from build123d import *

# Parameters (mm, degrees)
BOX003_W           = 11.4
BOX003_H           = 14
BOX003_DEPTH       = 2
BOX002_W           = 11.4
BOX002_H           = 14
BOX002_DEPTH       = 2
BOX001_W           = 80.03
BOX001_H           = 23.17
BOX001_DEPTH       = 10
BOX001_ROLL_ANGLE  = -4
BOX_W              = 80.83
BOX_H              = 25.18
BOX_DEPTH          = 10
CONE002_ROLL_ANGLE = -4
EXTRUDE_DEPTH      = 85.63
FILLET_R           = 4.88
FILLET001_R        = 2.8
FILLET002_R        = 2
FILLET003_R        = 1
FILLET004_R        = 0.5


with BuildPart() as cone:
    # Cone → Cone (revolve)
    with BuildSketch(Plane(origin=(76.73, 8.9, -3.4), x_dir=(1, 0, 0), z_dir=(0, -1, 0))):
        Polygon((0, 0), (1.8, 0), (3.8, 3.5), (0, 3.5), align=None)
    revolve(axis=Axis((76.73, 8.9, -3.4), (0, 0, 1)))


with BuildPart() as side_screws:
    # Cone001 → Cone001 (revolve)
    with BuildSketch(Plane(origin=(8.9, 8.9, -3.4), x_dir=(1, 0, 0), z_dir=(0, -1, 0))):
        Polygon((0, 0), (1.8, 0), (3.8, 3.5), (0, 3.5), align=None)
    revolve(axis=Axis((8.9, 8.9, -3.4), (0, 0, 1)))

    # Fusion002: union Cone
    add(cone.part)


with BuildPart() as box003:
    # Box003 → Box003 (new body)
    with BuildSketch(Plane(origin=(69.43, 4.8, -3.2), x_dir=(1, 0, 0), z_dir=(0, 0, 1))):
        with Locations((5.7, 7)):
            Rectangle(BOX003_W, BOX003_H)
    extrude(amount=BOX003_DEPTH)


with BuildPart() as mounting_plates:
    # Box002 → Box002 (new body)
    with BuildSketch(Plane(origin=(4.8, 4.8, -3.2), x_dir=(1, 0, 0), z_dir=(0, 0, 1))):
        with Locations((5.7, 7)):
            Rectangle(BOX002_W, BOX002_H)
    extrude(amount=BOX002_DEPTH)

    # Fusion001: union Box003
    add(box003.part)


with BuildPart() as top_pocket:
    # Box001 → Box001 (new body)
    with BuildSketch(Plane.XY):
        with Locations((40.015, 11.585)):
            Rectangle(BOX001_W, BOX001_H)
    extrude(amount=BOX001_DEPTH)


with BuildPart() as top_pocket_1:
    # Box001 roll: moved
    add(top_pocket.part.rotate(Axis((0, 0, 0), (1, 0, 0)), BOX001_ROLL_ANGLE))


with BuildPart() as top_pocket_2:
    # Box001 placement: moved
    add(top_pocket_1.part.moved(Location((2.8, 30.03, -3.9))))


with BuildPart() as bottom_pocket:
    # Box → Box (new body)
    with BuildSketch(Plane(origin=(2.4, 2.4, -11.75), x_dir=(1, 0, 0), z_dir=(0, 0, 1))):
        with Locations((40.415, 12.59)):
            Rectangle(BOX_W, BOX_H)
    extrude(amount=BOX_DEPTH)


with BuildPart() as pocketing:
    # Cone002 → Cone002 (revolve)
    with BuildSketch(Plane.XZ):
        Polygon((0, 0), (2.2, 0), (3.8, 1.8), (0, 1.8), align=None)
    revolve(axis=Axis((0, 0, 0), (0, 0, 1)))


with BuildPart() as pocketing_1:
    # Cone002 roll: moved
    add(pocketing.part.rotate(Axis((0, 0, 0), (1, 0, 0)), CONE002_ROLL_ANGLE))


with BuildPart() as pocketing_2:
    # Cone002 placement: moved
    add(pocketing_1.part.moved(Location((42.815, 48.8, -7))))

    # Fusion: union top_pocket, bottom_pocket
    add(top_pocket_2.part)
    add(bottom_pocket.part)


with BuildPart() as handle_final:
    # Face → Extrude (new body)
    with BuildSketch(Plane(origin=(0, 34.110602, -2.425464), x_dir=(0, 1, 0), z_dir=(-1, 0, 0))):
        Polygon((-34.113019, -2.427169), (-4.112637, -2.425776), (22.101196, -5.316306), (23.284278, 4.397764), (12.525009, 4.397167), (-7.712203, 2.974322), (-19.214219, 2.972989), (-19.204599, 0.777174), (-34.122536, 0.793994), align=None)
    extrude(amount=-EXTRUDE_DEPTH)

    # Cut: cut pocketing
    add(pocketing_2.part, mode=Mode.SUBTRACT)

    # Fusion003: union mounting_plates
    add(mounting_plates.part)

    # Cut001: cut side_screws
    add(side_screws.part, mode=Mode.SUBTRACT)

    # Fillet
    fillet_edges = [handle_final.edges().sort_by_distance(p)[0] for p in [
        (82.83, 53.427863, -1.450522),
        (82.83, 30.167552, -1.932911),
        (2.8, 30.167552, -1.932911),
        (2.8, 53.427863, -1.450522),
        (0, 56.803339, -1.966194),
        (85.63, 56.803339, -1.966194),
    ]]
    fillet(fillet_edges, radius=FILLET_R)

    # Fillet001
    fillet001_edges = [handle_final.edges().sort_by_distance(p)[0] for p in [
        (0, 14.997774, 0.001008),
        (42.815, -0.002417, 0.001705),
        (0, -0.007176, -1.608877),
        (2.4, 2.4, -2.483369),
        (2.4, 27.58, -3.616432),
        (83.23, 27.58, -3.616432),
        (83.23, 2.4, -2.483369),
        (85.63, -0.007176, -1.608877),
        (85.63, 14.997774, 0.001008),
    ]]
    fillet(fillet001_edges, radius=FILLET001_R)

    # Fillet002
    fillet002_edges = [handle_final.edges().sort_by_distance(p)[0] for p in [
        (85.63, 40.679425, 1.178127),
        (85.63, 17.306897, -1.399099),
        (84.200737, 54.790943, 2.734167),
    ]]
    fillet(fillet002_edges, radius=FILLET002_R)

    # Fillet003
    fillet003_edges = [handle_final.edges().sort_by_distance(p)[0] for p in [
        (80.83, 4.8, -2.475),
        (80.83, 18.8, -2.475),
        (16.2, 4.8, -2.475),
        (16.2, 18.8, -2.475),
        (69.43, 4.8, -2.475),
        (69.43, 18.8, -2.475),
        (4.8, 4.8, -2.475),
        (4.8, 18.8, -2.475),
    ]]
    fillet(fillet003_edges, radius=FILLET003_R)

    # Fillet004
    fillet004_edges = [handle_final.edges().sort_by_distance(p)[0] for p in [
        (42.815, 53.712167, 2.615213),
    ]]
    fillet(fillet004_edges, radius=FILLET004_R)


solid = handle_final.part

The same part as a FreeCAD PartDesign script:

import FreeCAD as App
import Part
import Sketcher

V = App.Vector
Q = App.Units.Quantity


def edges_at(feature, points):
    """Names of the edges that pass closest to the given points."""
    edges = feature.Shape.Edges
    near = lambda p: min(range(len(edges)), key=lambda i: edges[i].distToShape(Part.Vertex(*p))[0])
    return sorted({f"Edge{near(p) + 1}" for p in points})

doc = App.newDocument("Part")
body = doc.addObject("PartDesign::Body", "Body")

# Sketch on XZ plane
sketch1 = body.newObject("Sketcher::SketchObject", "Sketch")
sketch1.AttachmentSupport = (doc.getObject("XZ_Plane"), [""])
sketch1.MapMode = "FlatFace"
sketch1.AttachmentOffset = App.Placement(V(0, 0, -8.9), App.Rotation())
sketch1.addGeometry(Part.LineSegment(V(76.73, -3.4, 0), V(78.53, -3.4, 0)), False)
sketch1.addGeometry(Part.LineSegment(V(78.53, -3.4, 0), V(80.53, 0.1, 0)), False)
sketch1.addGeometry(Part.LineSegment(V(80.53, 0.1, 0), V(76.73, 0.1, 0)), False)
sketch1.addGeometry(Part.LineSegment(V(76.73, 0.1, 0), V(76.73, -3.4, 0)), False)
sketch1.addGeometry(Part.LineSegment(V(76.73, -3.4, 0), V(76.73, 0.1, 0)), True)  # axis
sketch1.addConstraint(Sketcher.Constraint("Coincident", 0, 2, 1, 1))
sketch1.addConstraint(Sketcher.Constraint("Coincident", 1, 2, 2, 1))
sketch1.addConstraint(Sketcher.Constraint("Coincident", 2, 2, 3, 1))
sketch1.addConstraint(Sketcher.Constraint("Coincident", 3, 2, 0, 1))
sketch1.addConstraint(Sketcher.Constraint("Horizontal", 0))
sketch1.addConstraint(Sketcher.Constraint("Horizontal", 2))
sketch1.addConstraint(Sketcher.Constraint("Vertical", 3))
sketch1.addConstraint(Sketcher.Constraint("Vertical", 4))
sketch1.addConstraint(Sketcher.Constraint("Coincident", 4, 1, 3, 2))
sketch1.addConstraint(Sketcher.Constraint("Horizontal", 1, 2, 4, 2))
sketch1.addConstraint(Sketcher.Constraint("DistanceX", 0, 1, 0, 2, Q("1.8 mm")))
sketch1.addConstraint(Sketcher.Constraint("DistanceX", 2, 2, 2, 1, Q("3.8 mm")))
sketch1.addConstraint(Sketcher.Constraint("DistanceY", 3, 2, 3, 1, Q("3.5 mm")))
sketch1.addConstraint(Sketcher.Constraint("DistanceY", 0, 2, -1, 1, Q("3.4 mm")))
sketch1.addConstraint(Sketcher.Constraint("DistanceX", -1, 1, 0, 2, Q("78.53 mm")))
revolution = body.newObject("PartDesign::Revolution", "Revolution")
revolution.Profile = sketch1
revolution.ReferenceAxis = (sketch1, ["Axis0"])
revolution.Angle = 360
body2 = doc.addObject("PartDesign::Body", "Body001")
body2.AllowCompound = True

# Sketch on XZ plane
sketch2 = body2.newObject("Sketcher::SketchObject", "Sketch001")
sketch2.AttachmentSupport = (doc.getObject("XZ_Plane001"), [""])
sketch2.MapMode = "FlatFace"
sketch2.AttachmentOffset = App.Placement(V(0, 0, -8.9), App.Rotation())
sketch2.addGeometry(Part.LineSegment(V(8.9, -3.4, 0), V(10.7, -3.4, 0)), False)
sketch2.addGeometry(Part.LineSegment(V(10.7, -3.4, 0), V(12.7, 0.1, 0)), False)
sketch2.addGeometry(Part.LineSegment(V(12.7, 0.1, 0), V(8.9, 0.1, 0)), False)
sketch2.addGeometry(Part.LineSegment(V(8.9, 0.1, 0), V(8.9, -3.4, 0)), False)
sketch2.addGeometry(Part.LineSegment(V(8.9, -3.4, 0), V(8.9, 0.1, 0)), True)  # axis
sketch2.addConstraint(Sketcher.Constraint("Coincident", 0, 2, 1, 1))
sketch2.addConstraint(Sketcher.Constraint("Coincident", 1, 2, 2, 1))
sketch2.addConstraint(Sketcher.Constraint("Coincident", 2, 2, 3, 1))
sketch2.addConstraint(Sketcher.Constraint("Coincident", 3, 2, 0, 1))
sketch2.addConstraint(Sketcher.Constraint("Horizontal", 0))
sketch2.addConstraint(Sketcher.Constraint("Horizontal", 2))
sketch2.addConstraint(Sketcher.Constraint("Vertical", 3))
sketch2.addConstraint(Sketcher.Constraint("Vertical", 4))
sketch2.addConstraint(Sketcher.Constraint("Coincident", 4, 1, 3, 2))
sketch2.addConstraint(Sketcher.Constraint("Horizontal", 1, 2, 4, 2))
sketch2.addConstraint(Sketcher.Constraint("DistanceX", 0, 1, 0, 2, Q("1.8 mm")))
sketch2.addConstraint(Sketcher.Constraint("DistanceX", 2, 2, 2, 1, Q("3.8 mm")))
sketch2.addConstraint(Sketcher.Constraint("DistanceY", 3, 2, 3, 1, Q("3.5 mm")))
sketch2.addConstraint(Sketcher.Constraint("DistanceX", -1, 1, 0, 2, Q("10.7 mm")))
sketch2.addConstraint(Sketcher.Constraint("DistanceY", 0, 2, -1, 1, Q("3.4 mm")))
revolution2 = body2.newObject("PartDesign::Revolution", "Revolution001")
revolution2.Profile = sketch2
revolution2.ReferenceAxis = (sketch2, ["Axis0"])
revolution2.Angle = 360
doc.recompute()

boolean = body2.newObject("PartDesign::Boolean", "Boolean")
boolean.Type = "Fuse"
boolean.addObjects([body])
body3 = doc.addObject("PartDesign::Body", "Body002")

# Sketch on XY plane
sketch3 = body3.newObject("Sketcher::SketchObject", "Sketch002")
sketch3.AttachmentSupport = (doc.getObject("XY_Plane002"), [""])
sketch3.MapMode = "FlatFace"
sketch3.AttachmentOffset = App.Placement(V(0, 0, -3.2), App.Rotation())
sketch3.addGeometry(Part.LineSegment(V(69.43, 18.8, 0), V(69.43, 4.8, 0)), False)
sketch3.addGeometry(Part.LineSegment(V(69.43, 4.8, 0), V(80.83, 4.8, 0)), False)
sketch3.addGeometry(Part.LineSegment(V(80.83, 4.8, 0), V(80.83, 18.8, 0)), False)
sketch3.addGeometry(Part.LineSegment(V(80.83, 18.8, 0), V(69.43, 18.8, 0)), False)
sketch3.addConstraint(Sketcher.Constraint("Coincident", 0, 2, 1, 1))
sketch3.addConstraint(Sketcher.Constraint("Coincident", 1, 2, 2, 1))
sketch3.addConstraint(Sketcher.Constraint("Coincident", 2, 2, 3, 1))
sketch3.addConstraint(Sketcher.Constraint("Coincident", 3, 2, 0, 1))
sketch3.addConstraint(Sketcher.Constraint("Vertical", 0))
sketch3.addConstraint(Sketcher.Constraint("Horizontal", 1))
sketch3.addConstraint(Sketcher.Constraint("Vertical", 2))
sketch3.addConstraint(Sketcher.Constraint("Horizontal", 3))
sketch3.addConstraint(Sketcher.Constraint("DistanceY", 0, 2, 0, 1, Q("14 mm")))
sketch3.addConstraint(Sketcher.Constraint("DistanceX", 1, 1, 1, 2, Q("11.4 mm")))
sketch3.addConstraint(Sketcher.Constraint("DistanceY", -1, 1, 0, 2, Q("4.8 mm")))
sketch3.addConstraint(Sketcher.Constraint("DistanceX", -1, 1, 0, 2, Q("69.43 mm")))
pad1 = body3.newObject("PartDesign::Pad", "Pad")
pad1.Profile = sketch3
pad1.Length = 2
body4 = doc.addObject("PartDesign::Body", "Body003")
body4.AllowCompound = True

# Sketch on XY plane
sketch4 = body4.newObject("Sketcher::SketchObject", "Sketch003")
sketch4.AttachmentSupport = (doc.getObject("XY_Plane003"), [""])
sketch4.MapMode = "FlatFace"
sketch4.AttachmentOffset = App.Placement(V(0, 0, -3.2), App.Rotation())
sketch4.addGeometry(Part.LineSegment(V(4.8, 18.8, 0), V(4.8, 4.8, 0)), False)
sketch4.addGeometry(Part.LineSegment(V(4.8, 4.8, 0), V(16.2, 4.8, 0)), False)
sketch4.addGeometry(Part.LineSegment(V(16.2, 4.8, 0), V(16.2, 18.8, 0)), False)
sketch4.addGeometry(Part.LineSegment(V(16.2, 18.8, 0), V(4.8, 18.8, 0)), False)
sketch4.addConstraint(Sketcher.Constraint("Coincident", 0, 2, 1, 1))
sketch4.addConstraint(Sketcher.Constraint("Coincident", 1, 2, 2, 1))
sketch4.addConstraint(Sketcher.Constraint("Coincident", 2, 2, 3, 1))
sketch4.addConstraint(Sketcher.Constraint("Coincident", 3, 2, 0, 1))
sketch4.addConstraint(Sketcher.Constraint("Vertical", 0))
sketch4.addConstraint(Sketcher.Constraint("Horizontal", 1))
sketch4.addConstraint(Sketcher.Constraint("Vertical", 2))
sketch4.addConstraint(Sketcher.Constraint("Horizontal", 3))
sketch4.addConstraint(Sketcher.Constraint("DistanceY", 0, 2, 0, 1, Q("14 mm")))
sketch4.addConstraint(Sketcher.Constraint("DistanceX", 1, 1, 1, 2, Q("11.4 mm")))
sketch4.addConstraint(Sketcher.Constraint("DistanceX", -1, 1, 0, 2, Q("4.8 mm")))
sketch4.addConstraint(Sketcher.Constraint("DistanceY", -1, 1, 0, 2, Q("4.8 mm")))
pad2 = body4.newObject("PartDesign::Pad", "Pad001")
pad2.Profile = sketch4
pad2.Length = 2
doc.recompute()

boolean2 = body4.newObject("PartDesign::Boolean", "Boolean001")
boolean2.Type = "Fuse"
boolean2.addObjects([body3])
body5 = doc.addObject("PartDesign::Body", "Body004")

# Sketch on XY plane
sketch5 = body5.newObject("Sketcher::SketchObject", "Sketch004")
sketch5.AttachmentSupport = (doc.getObject("XY_Plane004"), [""])
sketch5.MapMode = "FlatFace"
sketch5.addGeometry(Part.LineSegment(V(0, 23.17, 0), V(0, 0, 0)), False)
sketch5.addGeometry(Part.LineSegment(V(0, 0, 0), V(80.03, 0, 0)), False)
sketch5.addGeometry(Part.LineSegment(V(80.03, 0, 0), V(80.03, 23.17, 0)), False)
sketch5.addGeometry(Part.LineSegment(V(80.03, 23.17, 0), V(0, 23.17, 0)), False)
sketch5.addConstraint(Sketcher.Constraint("Coincident", 0, 2, 1, 1))
sketch5.addConstraint(Sketcher.Constraint("Coincident", 1, 2, 2, 1))
sketch5.addConstraint(Sketcher.Constraint("Coincident", 2, 2, 3, 1))
sketch5.addConstraint(Sketcher.Constraint("Coincident", 3, 2, 0, 1))
sketch5.addConstraint(Sketcher.Constraint("Vertical", 0))
sketch5.addConstraint(Sketcher.Constraint("Horizontal", 1))
sketch5.addConstraint(Sketcher.Constraint("Vertical", 2))
sketch5.addConstraint(Sketcher.Constraint("Horizontal", 3))
sketch5.addConstraint(Sketcher.Constraint("Coincident", 0, 2, -1, 1))
sketch5.addConstraint(Sketcher.Constraint("DistanceX", 1, 1, 1, 2, Q("80.03 mm")))
sketch5.addConstraint(Sketcher.Constraint("DistanceY", 0, 2, 0, 1, Q("23.17 mm")))
pad3 = body5.newObject("PartDesign::Pad", "Pad002")
pad3.Profile = sketch5
pad3.Length = 10
body6 = doc.addObject("PartDesign::Body", "Body005")
doc.recompute()

body5.Placement = App.Placement(V(0, 0, 0), App.Rotation(V(1, 0, 0), 356))
boolean3 = body6.newObject("PartDesign::Boolean", "Boolean002")
boolean3.Type = "Fuse"
boolean3.addObjects([body5])
body7 = doc.addObject("PartDesign::Body", "Body006")
doc.recompute()

body6.Placement = App.Placement(V(2.8, 30.03, -3.9), App.Rotation(V(0, 0, 1), 0))
boolean4 = body7.newObject("PartDesign::Boolean", "Boolean003")
boolean4.Type = "Fuse"
boolean4.addObjects([body6])
body8 = doc.addObject("PartDesign::Body", "Body007")

# Sketch on XY plane
sketch6 = body8.newObject("Sketcher::SketchObject", "Sketch005")
sketch6.AttachmentSupport = (doc.getObject("XY_Plane007"), [""])
sketch6.MapMode = "FlatFace"
sketch6.AttachmentOffset = App.Placement(V(0, 0, -11.75), App.Rotation())
sketch6.addGeometry(Part.LineSegment(V(2.4, 27.58, 0), V(2.4, 2.4, 0)), False)
sketch6.addGeometry(Part.LineSegment(V(2.4, 2.4, 0), V(83.23, 2.4, 0)), False)
sketch6.addGeometry(Part.LineSegment(V(83.23, 2.4, 0), V(83.23, 27.58, 0)), False)
sketch6.addGeometry(Part.LineSegment(V(83.23, 27.58, 0), V(2.4, 27.58, 0)), False)
sketch6.addConstraint(Sketcher.Constraint("Coincident", 0, 2, 1, 1))
sketch6.addConstraint(Sketcher.Constraint("Coincident", 1, 2, 2, 1))
sketch6.addConstraint(Sketcher.Constraint("Coincident", 2, 2, 3, 1))
sketch6.addConstraint(Sketcher.Constraint("Coincident", 3, 2, 0, 1))
sketch6.addConstraint(Sketcher.Constraint("Vertical", 0))
sketch6.addConstraint(Sketcher.Constraint("Horizontal", 1))
sketch6.addConstraint(Sketcher.Constraint("Vertical", 2))
sketch6.addConstraint(Sketcher.Constraint("Horizontal", 3))
sketch6.addConstraint(Sketcher.Constraint("DistanceX", 1, 1, 1, 2, Q("80.83 mm")))
sketch6.addConstraint(Sketcher.Constraint("DistanceY", 0, 2, 0, 1, Q("25.18 mm")))
sketch6.addConstraint(Sketcher.Constraint("DistanceX", -1, 1, 0, 2, Q("2.4 mm")))
sketch6.addConstraint(Sketcher.Constraint("DistanceY", -1, 1, 0, 2, Q("2.4 mm")))
pad4 = body8.newObject("PartDesign::Pad", "Pad003")
pad4.Profile = sketch6
pad4.Length = 10
body9 = doc.addObject("PartDesign::Body", "Body008")

# Sketch on XZ plane
sketch7 = body9.newObject("Sketcher::SketchObject", "Sketch006")
sketch7.AttachmentSupport = (doc.getObject("XZ_Plane008"), [""])
sketch7.MapMode = "FlatFace"
sketch7.addGeometry(Part.LineSegment(V(0, 0, 0), V(2.2, 0, 0)), False)
sketch7.addGeometry(Part.LineSegment(V(2.2, 0, 0), V(3.8, 1.8, 0)), False)
sketch7.addGeometry(Part.LineSegment(V(3.8, 1.8, 0), V(0, 1.8, 0)), False)
sketch7.addGeometry(Part.LineSegment(V(0, 1.8, 0), V(0, 0, 0)), False)
sketch7.addConstraint(Sketcher.Constraint("Coincident", 0, 2, 1, 1))
sketch7.addConstraint(Sketcher.Constraint("Coincident", 1, 2, 2, 1))
sketch7.addConstraint(Sketcher.Constraint("Coincident", 2, 2, 3, 1))
sketch7.addConstraint(Sketcher.Constraint("Coincident", 3, 2, 0, 1))
sketch7.addConstraint(Sketcher.Constraint("Horizontal", 0))
sketch7.addConstraint(Sketcher.Constraint("Horizontal", 2))
sketch7.addConstraint(Sketcher.Constraint("Vertical", 3))
sketch7.addConstraint(Sketcher.Constraint("Coincident", 3, 2, -1, 1))
sketch7.addConstraint(Sketcher.Constraint("DistanceX", 0, 1, 0, 2, Q("2.2 mm")))
sketch7.addConstraint(Sketcher.Constraint("DistanceX", 2, 2, 2, 1, Q("3.8 mm")))
sketch7.addConstraint(Sketcher.Constraint("DistanceY", 3, 2, 3, 1, Q("1.8 mm")))
revolution3 = body9.newObject("PartDesign::Revolution", "Revolution002")
revolution3.Profile = sketch7
revolution3.ReferenceAxis = (sketch7, ["V_Axis"])
revolution3.Angle = 360
body10 = doc.addObject("PartDesign::Body", "Body009")
doc.recompute()

body9.Placement = App.Placement(V(0, 0, 0), App.Rotation(V(1, 0, 0), 356))
boolean5 = body10.newObject("PartDesign::Boolean", "Boolean004")
boolean5.Type = "Fuse"
boolean5.addObjects([body9])
body11 = doc.addObject("PartDesign::Body", "Body010")
body11.AllowCompound = True
doc.recompute()

body10.Placement = App.Placement(V(42.815, 48.8, -7), App.Rotation(V(0, 0, 1), 0))
boolean6 = body11.newObject("PartDesign::Boolean", "Boolean005")
boolean6.Type = "Fuse"
boolean6.addObjects([body10])
doc.recompute()

boolean7 = body11.newObject("PartDesign::Boolean", "Boolean006")
boolean7.Type = "Fuse"
boolean7.addObjects([body7])
doc.recompute()

boolean8 = body11.newObject("PartDesign::Boolean", "Boolean007")
boolean8.Type = "Fuse"
boolean8.addObjects([body8])
body12 = doc.addObject("PartDesign::Body", "Body011")

# Sketch on YZ plane
sketch8 = body12.newObject("Sketcher::SketchObject", "Sketch007")
sketch8.AttachmentSupport = (doc.getObject("YZ_Plane011"), [""])
sketch8.MapMode = "FlatFace"
sketch8.addGeometry(Part.LineSegment(V(-0.002417, 0.001705, 0), V(29.997965, 0.000312, 0)), False)
sketch8.addGeometry(Part.LineSegment(V(29.997965, 0.000312, 0), V(56.211798, 2.890842, 0)), False)
sketch8.addGeometry(Part.LineSegment(V(56.211798, 2.890842, 0), V(57.39488, -6.823228, 0)), False)
sketch8.addGeometry(Part.LineSegment(V(57.39488, -6.823228, 0), V(46.635611, -6.822631, 0)), False)
sketch8.addGeometry(Part.LineSegment(V(46.635611, -6.822631, 0), V(26.398399, -5.399786, 0)), False)
sketch8.addGeometry(Part.LineSegment(V(26.398399, -5.399786, 0), V(14.896383, -5.398453, 0)), False)
sketch8.addGeometry(Part.LineSegment(V(14.896383, -5.398453, 0), V(14.906003, -3.202638, 0)), False)
sketch8.addGeometry(Part.LineSegment(V(14.906003, -3.202638, 0), V(-0.011934, -3.219458, 0)), False)
sketch8.addGeometry(Part.LineSegment(V(-0.011934, -3.219458, 0), V(-0.002417, 0.001705, 0)), False)
sketch8.addConstraint(Sketcher.Constraint("Coincident", 0, 2, 1, 1))
sketch8.addConstraint(Sketcher.Constraint("Coincident", 1, 2, 2, 1))
sketch8.addConstraint(Sketcher.Constraint("Coincident", 2, 2, 3, 1))
sketch8.addConstraint(Sketcher.Constraint("Coincident", 3, 2, 4, 1))
sketch8.addConstraint(Sketcher.Constraint("Coincident", 4, 2, 5, 1))
sketch8.addConstraint(Sketcher.Constraint("Coincident", 5, 2, 6, 1))
sketch8.addConstraint(Sketcher.Constraint("Coincident", 6, 2, 7, 1))
sketch8.addConstraint(Sketcher.Constraint("Coincident", 7, 2, 8, 1))
sketch8.addConstraint(Sketcher.Constraint("Coincident", 8, 2, 0, 1))
sketch8.addConstraint(Sketcher.Constraint("DistanceX", -1, 1, 1, 2, Q("56.211798 mm")))
sketch8.addConstraint(Sketcher.Constraint("DistanceX", -1, 1, 4, 2, Q("26.398399 mm")))
sketch8.addConstraint(Sketcher.Constraint("DistanceX", 7, 2, 0, 2, Q("30.009899 mm")))
sketch8.addConstraint(Sketcher.Constraint("DistanceX", 8, 2, 5, 2, Q("14.8988 mm")))
sketch8.addConstraint(Sketcher.Constraint("Distance", 2, Q("9.785849 mm")))
sketch8.addConstraint(Sketcher.Constraint("Distance", 3, Q("10.759269 mm")))
sketch8.addConstraint(Sketcher.Constraint("Distance", 4, Q("20.287169 mm")))
sketch8.addConstraint(Sketcher.Constraint("DistanceY", -1, 1, 0, 2, Q("0.000312 mm")))
sketch8.addConstraint(Sketcher.Constraint("DistanceX", -1, 1, 2, 2, Q("57.39488 mm")))
sketch8.addConstraint(Sketcher.Constraint("DistanceY", 2, 2, -1, 1, Q("6.823228 mm")))
sketch8.addConstraint(Sketcher.Constraint("DistanceY", 3, 2, -1, 1, Q("6.822631 mm")))
sketch8.addConstraint(Sketcher.Constraint("DistanceY", 3, 2, 5, 2, Q("1.424178 mm")))
sketch8.addConstraint(Sketcher.Constraint("DistanceX", 5, 2, 6, 2, Q("0.00962 mm")))
sketch8.addConstraint(Sketcher.Constraint("DistanceY", 6, 2, 0, 2, Q("3.20295 mm")))
sketch8.addConstraint(Sketcher.Constraint("DistanceY", 7, 2, 6, 2, Q("0.01682 mm")))
sketch8.addConstraint(Sketcher.Constraint("DistanceY", 5, 2, 8, 2, Q("5.400158 mm")))
sketch8.addConstraint(Sketcher.Constraint("Distance", 0, Q("30.000382 mm")))
sketch8.addConstraint(Sketcher.Constraint("Distance", 1, Q("26.372717 mm")))
pad5 = body12.newObject("PartDesign::Pad", "Pad004")
pad5.Profile = sketch8
pad5.Length = 85.63
doc.recompute()

boolean9 = body12.newObject("PartDesign::Boolean", "Boolean008")
boolean9.Type = "Cut"
boolean9.addObjects([body11])
doc.recompute()

boolean10 = body12.newObject("PartDesign::Boolean", "Boolean009")
boolean10.Type = "Fuse"
boolean10.addObjects([body4])
doc.recompute()

boolean11 = body12.newObject("PartDesign::Boolean", "Boolean010")
boolean11.Type = "Cut"
boolean11.addObjects([body2])
doc.recompute()

fillet = body12.newObject("PartDesign::Fillet", "Fillet")
fillet.Base = (boolean11, edges_at(boolean11, [
    (82.83, 53.428, -1.451),
    (82.83, 30.168, -1.933),
    (2.8, 30.168, -1.933),
    (2.8, 53.428, -1.451),
    (0, 56.803, -1.966),
    (85.63, 56.803, -1.966),
]))
fillet.Radius = 4.88
doc.recompute()

fillet2 = body12.newObject("PartDesign::Fillet", "Fillet001")
fillet2.Base = (fillet, edges_at(fillet, [
    (0, 14.998, 0.001),
    (42.815, -0.002, 0.002),
    (0, -0.007, -1.609),
    (2.4, 2.4, -2.483),
    (2.4, 27.58, -3.616),
    (83.23, 27.58, -3.616),
    (83.23, 2.4, -2.483),
    (85.63, -0.007, -1.609),
    (85.63, 14.998, 0.001),
]))
fillet2.Radius = 2.8
doc.recompute()

fillet3 = body12.newObject("PartDesign::Fillet", "Fillet002")
fillet3.Base = (fillet2, edges_at(fillet2, [(85.63, 27.988, -0.221), (85.63, 27.988, -0.221), (84.201, 54.791, 2.734)]))
fillet3.Radius = 2
doc.recompute()

fillet4 = body12.newObject("PartDesign::Fillet", "Fillet003")
fillet4.Base = (fillet3, edges_at(fillet3, [
    (80.83, 4.8, -2.475),
    (80.83, 18.8, -2.475),
    (16.2, 4.8, -2.475),
    (16.2, 18.8, -2.475),
    (69.43, 4.8, -2.475),
    (69.43, 18.8, -2.475),
    (4.8, 4.8, -2.475),
    (4.8, 18.8, -2.475),
]))
fillet4.Radius = 1
doc.recompute()

fillet5 = body12.newObject("PartDesign::Fillet", "Fillet004")
fillet5.Base = (fillet4, edges_at(fillet4, [(42.815, 53.712, 2.615)]))
fillet5.Radius = 0.5

doc.recompute()
